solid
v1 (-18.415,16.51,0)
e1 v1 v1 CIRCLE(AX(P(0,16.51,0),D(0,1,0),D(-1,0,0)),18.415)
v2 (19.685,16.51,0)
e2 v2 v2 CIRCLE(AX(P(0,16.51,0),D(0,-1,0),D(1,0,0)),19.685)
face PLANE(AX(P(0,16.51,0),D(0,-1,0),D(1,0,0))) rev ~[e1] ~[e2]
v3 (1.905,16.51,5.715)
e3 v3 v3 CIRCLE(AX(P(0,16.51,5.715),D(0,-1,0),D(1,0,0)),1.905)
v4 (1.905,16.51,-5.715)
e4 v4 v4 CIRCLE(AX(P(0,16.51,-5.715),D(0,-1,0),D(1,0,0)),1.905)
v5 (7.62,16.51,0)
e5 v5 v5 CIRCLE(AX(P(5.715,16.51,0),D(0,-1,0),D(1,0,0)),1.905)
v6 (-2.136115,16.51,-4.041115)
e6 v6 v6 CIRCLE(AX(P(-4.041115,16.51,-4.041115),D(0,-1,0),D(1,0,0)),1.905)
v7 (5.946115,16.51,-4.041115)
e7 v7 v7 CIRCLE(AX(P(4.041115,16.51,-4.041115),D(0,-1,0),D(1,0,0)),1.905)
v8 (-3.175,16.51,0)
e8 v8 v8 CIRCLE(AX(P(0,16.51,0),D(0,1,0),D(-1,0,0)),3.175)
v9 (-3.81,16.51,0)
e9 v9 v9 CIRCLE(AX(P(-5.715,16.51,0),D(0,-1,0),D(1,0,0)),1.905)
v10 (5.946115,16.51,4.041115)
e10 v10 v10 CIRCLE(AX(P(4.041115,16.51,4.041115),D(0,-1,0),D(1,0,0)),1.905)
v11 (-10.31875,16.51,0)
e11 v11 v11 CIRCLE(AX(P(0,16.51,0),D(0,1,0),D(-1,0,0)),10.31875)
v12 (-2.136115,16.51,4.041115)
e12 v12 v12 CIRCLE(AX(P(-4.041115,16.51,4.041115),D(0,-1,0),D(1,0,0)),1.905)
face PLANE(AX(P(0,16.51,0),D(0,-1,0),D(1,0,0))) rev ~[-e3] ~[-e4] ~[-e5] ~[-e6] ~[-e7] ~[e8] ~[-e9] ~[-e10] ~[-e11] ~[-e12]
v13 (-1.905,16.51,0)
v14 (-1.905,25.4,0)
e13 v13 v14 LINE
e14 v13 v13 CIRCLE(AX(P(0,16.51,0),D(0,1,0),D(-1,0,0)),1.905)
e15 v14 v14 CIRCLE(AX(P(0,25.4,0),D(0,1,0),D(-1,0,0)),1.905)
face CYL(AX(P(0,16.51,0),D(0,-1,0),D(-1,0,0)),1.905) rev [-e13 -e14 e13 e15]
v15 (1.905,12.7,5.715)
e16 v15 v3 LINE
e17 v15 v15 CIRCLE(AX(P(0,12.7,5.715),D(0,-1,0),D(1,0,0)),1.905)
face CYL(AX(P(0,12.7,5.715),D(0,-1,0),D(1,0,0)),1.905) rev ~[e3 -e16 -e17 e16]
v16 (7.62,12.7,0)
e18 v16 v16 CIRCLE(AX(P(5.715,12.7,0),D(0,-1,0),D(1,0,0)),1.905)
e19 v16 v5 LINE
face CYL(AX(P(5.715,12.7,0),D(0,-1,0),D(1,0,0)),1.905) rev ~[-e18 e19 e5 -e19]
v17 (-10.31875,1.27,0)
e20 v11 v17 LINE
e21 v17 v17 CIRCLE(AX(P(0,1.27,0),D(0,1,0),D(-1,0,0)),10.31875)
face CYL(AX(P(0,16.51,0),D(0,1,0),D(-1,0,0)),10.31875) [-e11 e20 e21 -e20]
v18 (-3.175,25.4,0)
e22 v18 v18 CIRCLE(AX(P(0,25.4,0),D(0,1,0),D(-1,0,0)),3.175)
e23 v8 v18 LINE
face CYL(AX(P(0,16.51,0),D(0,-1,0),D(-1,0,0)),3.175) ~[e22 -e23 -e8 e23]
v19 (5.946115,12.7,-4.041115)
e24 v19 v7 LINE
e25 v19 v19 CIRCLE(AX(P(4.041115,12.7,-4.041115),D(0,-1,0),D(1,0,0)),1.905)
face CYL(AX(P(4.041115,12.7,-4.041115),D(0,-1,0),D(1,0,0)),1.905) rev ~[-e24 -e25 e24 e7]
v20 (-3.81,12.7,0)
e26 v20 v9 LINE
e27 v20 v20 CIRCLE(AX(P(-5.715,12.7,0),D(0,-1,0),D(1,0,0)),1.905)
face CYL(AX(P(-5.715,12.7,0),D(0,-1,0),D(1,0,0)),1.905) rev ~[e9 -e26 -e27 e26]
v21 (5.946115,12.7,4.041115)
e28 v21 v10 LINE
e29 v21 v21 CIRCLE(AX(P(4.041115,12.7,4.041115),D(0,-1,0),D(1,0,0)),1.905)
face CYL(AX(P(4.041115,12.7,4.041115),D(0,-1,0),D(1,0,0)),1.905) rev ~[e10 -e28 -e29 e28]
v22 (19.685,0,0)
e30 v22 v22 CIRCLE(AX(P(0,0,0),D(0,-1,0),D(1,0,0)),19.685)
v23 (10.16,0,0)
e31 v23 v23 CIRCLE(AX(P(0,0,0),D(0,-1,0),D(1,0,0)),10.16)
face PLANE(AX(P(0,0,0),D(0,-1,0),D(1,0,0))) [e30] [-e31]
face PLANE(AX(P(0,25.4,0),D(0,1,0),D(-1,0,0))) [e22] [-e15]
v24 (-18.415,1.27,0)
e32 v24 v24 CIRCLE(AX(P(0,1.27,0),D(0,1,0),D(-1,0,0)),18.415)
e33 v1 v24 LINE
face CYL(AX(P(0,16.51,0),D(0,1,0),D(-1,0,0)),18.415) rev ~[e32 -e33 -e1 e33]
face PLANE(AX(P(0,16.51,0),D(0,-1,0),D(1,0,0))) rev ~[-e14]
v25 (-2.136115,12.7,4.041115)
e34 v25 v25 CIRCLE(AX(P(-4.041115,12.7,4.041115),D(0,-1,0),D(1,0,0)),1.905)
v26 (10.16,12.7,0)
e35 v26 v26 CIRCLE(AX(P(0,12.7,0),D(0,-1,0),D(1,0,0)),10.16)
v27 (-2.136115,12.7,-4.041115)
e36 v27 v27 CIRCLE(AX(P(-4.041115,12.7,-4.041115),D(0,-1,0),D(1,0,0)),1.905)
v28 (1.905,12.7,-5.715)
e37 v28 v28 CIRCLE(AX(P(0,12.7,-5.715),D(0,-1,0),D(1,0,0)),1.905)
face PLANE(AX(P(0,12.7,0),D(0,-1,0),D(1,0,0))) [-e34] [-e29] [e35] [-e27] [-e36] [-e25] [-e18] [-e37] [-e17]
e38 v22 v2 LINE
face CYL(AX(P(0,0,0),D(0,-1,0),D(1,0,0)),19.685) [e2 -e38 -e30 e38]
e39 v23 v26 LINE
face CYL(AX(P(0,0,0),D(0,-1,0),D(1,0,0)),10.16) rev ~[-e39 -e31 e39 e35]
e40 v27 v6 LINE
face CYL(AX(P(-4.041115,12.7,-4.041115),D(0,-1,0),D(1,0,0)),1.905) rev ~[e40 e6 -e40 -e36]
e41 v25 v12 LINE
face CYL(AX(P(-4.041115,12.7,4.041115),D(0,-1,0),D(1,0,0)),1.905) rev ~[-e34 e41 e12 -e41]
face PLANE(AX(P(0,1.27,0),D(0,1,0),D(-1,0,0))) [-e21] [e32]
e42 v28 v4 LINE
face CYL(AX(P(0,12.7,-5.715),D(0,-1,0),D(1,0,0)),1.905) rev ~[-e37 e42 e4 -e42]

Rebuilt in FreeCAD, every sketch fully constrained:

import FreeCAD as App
import Part
import Sketcher
Q = App.Units.Quantity

doc = App.newDocument("Part")
body = doc.addObject("PartDesign::Body", "Body")

sketch1 = body.newObject("Sketcher::SketchObject", "Sketch")
sketch1.AttachmentSupport = (doc.getObject("XZ_Plane"), [""])
sketch1.MapMode = "FlatFace"
sketch1.addGeometry(Part.Circle(App.Vector(0, 0, 0), App.Vector(0, 0, 1), 19.685), False)
sketch1.addConstraint(Sketcher.Constraint("Coincident", 0, 3, -1, 1))
sketch1.addConstraint(Sketcher.Constraint("Diameter", 0, Q("1.55 in")))
pad1 = body.newObject("PartDesign::Pad", "Pad")
pad1.Profile = sketch1
pad1.Length = Q("0.65 in")
pad1.Reversed = True

sketch2 = body.newObject("Sketcher::SketchObject", "Sketch001")
sketch2.AttachmentSupport = (doc.getObject("XZ_Plane"), [""])
sketch2.MapMode = "FlatFace"
sketch2.addGeometry(Part.Circle(App.Vector(0, 0, 0), App.Vector(0, 0, 1), 10.16), False)
sketch2.addConstraint(Sketcher.Constraint("Coincident", 0, 3, -1, 1))
sketch2.addConstraint(Sketcher.Constraint("Diameter", 0, Q("0.8 in")))
pocket1 = body.newObject("PartDesign::Pocket", "Pocket")
pocket1.Profile = sketch2
pocket1.Length = Q("0.5 in")

sketch3 = body.newObject("Sketcher::SketchObject", "Sketch002")
sketch3.AttachmentSupport = (doc.getObject("XZ_Plane"), [""])
sketch3.MapMode = "FlatFace"
sketch3.AttachmentOffset = App.Placement(App.Vector(0, 0, -0.5 * 25.4), App.Rotation())
sketch3.addGeometry(Part.Circle(App.Vector(0, 5.715, 0), App.Vector(0, 0, 1), 1.905), False)
sketch3.addGeometry(Part.Circle(App.Vector(4.041115, 4.041115, 0), App.Vector(0, 0, 1), 1.905), False)
sketch3.addGeometry(Part.Circle(App.Vector(5.715, 0, 0), App.Vector(0, 0, 1), 1.905), False)
sketch3.addGeometry(Part.Circle(App.Vector(4.041115, -4.041115, 0), App.Vector(0, 0, 1), 1.905), False)
sketch3.addGeometry(Part.Circle(App.Vector(0, -5.715, 0), App.Vector(0, 0, 1), 1.905), False)
sketch3.addGeometry(Part.Circle(App.Vector(-4.041115, -4.041115, 0), App.Vector(0, 0, 1), 1.905), False)
sketch3.addGeometry(Part.Circle(App.Vector(-4.041115, 4.041115, 0), App.Vector(0, 0, 1), 1.905), False)
sketch3.addGeometry(Part.Circle(App.Vector(-5.715, 0, 0), App.Vector(0, 0, 1), 1.905), False)
sketch3.addConstraint(Sketcher.Constraint("Equal", 0, 1))
sketch3.addConstraint(Sketcher.Constraint("Equal", 1, 2))
sketch3.addConstraint(Sketcher.Constraint("Equal", 2, 3))
sketch3.addConstraint(Sketcher.Constraint("Equal", 3, 4))
sketch3.addConstraint(Sketcher.Constraint("Equal", 4, 5))
sketch3.addConstraint(Sketcher.Constraint("Equal", 5, 6))
sketch3.addConstraint(Sketcher.Constraint("Equal", 6, 7))
sketch3.addConstraint(Sketcher.Constraint("Symmetric", 0, 3, 4, 3, -1, 1))
sketch3.addConstraint(Sketcher.Constraint("Symmetric", 1, 3, 5, 3, -1, 1))
sketch3.addConstraint(Sketcher.Constraint("Symmetric", 3, 3, 6, 3, -1, 1))
sketch3.addConstraint(Sketcher.Constraint("Symmetric", 2, 3, 7, 3, -1, 1))
sketch3.addConstraint(Sketcher.Constraint("Symmetric", 3, 3, 5, 3, -2))
sketch3.addConstraint(Sketcher.Constraint("PointOnObject", 0, 3, -2))
sketch3.addConstraint(Sketcher.Constraint("PointOnObject", 2, 3, -1))
sketch3.addConstraint(Sketcher.Constraint("Diameter", 0, Q("0.15 in")))
sketch3.addConstraint(Sketcher.Constraint("DistanceY", 4, 3, 0, 3, Q("0.45 in")))
sketch3.addConstraint(Sketcher.Constraint("DistanceX", -1, 1, 2, 3, Q("0.225 in")))
sketch3.addConstraint(Sketcher.Constraint("DistanceY", 3, 3, 1, 3, 8.08223))
sketch3.addConstraint(Sketcher.Constraint("DistanceX", 5, 3, 3, 3, 8.08223))
pocket2 = body.newObject("PartDesign::Pocket", "Pocket001")
pocket2.Profile = sketch3
pocket2.Length = Q("1 in")

sketch4 = body.newObject("Sketcher::SketchObject", "Sketch003")
sketch4.AttachmentSupport = (doc.getObject("XZ_Plane"), [""])
sketch4.MapMode = "FlatFace"
sketch4.AttachmentOffset = App.Placement(App.Vector(0, 0, -0.65 * 25.4), App.Rotation())
sketch4.addGeometry(Part.Circle(App.Vector(0, 0, 0), App.Vector(0, 0, 1), 18.415), False)
sketch4.addGeometry(Part.Circle(App.Vector(0, 0, 0), App.Vector(0, 0, 1), 10.31875), False)
sketch4.addConstraint(Sketcher.Constraint("Coincident", 0, 3, -1, 1))
sketch4.addConstraint(Sketcher.Constraint("Coincident", 1, 3, -1, 1))
sketch4.addConstraint(Sketcher.Constraint("Diameter", 0, Q("1.45 in")))
sketch4.addConstraint(Sketcher.Constraint("Diameter", 1, Q("0.8125 in")))
pocket3 = body.newObject("PartDesign::Pocket", "Pocket002")
pocket3.Profile = sketch4
pocket3.Length = Q("0.6 in")
pocket3.Reversed = True

sketch5 = body.newObject("Sketcher::SketchObject", "Sketch004")
sketch5.AttachmentSupport = (doc.getObject("XZ_Plane"), [""])
sketch5.MapMode = "FlatFace"
sketch5.AttachmentOffset = App.Placement(App.Vector(0, 0, -0.65 * 25.4), App.Rotation())
sketch5.addGeometry(Part.Circle(App.Vector(0, 0, 0), App.Vector(0, 0, 1), 3.175), False)
sketch5.addGeometry(Part.Circle(App.Vector(0, 0, 0), App.Vector(0, 0, 1), 1.905), False)
sketch5.addConstraint(Sketcher.Constraint("Coincident", 0, 3, -1, 1))
sketch5.addConstraint(Sketcher.Constraint("Coincident", 1, 3, -1, 1))
sketch5.addConstraint(Sketcher.Constraint("Diameter", 0, Q("0.25 in")))
sketch5.addConstraint(Sketcher.Constraint("Diameter", 1, Q("0.15 in")))
pad2 = body.newObject("PartDesign::Pad", "Pad001")
pad2.Profile = sketch5
pad2.Length = Q("0.35 in")
pad2.Reversed = True

doc.recompute()
